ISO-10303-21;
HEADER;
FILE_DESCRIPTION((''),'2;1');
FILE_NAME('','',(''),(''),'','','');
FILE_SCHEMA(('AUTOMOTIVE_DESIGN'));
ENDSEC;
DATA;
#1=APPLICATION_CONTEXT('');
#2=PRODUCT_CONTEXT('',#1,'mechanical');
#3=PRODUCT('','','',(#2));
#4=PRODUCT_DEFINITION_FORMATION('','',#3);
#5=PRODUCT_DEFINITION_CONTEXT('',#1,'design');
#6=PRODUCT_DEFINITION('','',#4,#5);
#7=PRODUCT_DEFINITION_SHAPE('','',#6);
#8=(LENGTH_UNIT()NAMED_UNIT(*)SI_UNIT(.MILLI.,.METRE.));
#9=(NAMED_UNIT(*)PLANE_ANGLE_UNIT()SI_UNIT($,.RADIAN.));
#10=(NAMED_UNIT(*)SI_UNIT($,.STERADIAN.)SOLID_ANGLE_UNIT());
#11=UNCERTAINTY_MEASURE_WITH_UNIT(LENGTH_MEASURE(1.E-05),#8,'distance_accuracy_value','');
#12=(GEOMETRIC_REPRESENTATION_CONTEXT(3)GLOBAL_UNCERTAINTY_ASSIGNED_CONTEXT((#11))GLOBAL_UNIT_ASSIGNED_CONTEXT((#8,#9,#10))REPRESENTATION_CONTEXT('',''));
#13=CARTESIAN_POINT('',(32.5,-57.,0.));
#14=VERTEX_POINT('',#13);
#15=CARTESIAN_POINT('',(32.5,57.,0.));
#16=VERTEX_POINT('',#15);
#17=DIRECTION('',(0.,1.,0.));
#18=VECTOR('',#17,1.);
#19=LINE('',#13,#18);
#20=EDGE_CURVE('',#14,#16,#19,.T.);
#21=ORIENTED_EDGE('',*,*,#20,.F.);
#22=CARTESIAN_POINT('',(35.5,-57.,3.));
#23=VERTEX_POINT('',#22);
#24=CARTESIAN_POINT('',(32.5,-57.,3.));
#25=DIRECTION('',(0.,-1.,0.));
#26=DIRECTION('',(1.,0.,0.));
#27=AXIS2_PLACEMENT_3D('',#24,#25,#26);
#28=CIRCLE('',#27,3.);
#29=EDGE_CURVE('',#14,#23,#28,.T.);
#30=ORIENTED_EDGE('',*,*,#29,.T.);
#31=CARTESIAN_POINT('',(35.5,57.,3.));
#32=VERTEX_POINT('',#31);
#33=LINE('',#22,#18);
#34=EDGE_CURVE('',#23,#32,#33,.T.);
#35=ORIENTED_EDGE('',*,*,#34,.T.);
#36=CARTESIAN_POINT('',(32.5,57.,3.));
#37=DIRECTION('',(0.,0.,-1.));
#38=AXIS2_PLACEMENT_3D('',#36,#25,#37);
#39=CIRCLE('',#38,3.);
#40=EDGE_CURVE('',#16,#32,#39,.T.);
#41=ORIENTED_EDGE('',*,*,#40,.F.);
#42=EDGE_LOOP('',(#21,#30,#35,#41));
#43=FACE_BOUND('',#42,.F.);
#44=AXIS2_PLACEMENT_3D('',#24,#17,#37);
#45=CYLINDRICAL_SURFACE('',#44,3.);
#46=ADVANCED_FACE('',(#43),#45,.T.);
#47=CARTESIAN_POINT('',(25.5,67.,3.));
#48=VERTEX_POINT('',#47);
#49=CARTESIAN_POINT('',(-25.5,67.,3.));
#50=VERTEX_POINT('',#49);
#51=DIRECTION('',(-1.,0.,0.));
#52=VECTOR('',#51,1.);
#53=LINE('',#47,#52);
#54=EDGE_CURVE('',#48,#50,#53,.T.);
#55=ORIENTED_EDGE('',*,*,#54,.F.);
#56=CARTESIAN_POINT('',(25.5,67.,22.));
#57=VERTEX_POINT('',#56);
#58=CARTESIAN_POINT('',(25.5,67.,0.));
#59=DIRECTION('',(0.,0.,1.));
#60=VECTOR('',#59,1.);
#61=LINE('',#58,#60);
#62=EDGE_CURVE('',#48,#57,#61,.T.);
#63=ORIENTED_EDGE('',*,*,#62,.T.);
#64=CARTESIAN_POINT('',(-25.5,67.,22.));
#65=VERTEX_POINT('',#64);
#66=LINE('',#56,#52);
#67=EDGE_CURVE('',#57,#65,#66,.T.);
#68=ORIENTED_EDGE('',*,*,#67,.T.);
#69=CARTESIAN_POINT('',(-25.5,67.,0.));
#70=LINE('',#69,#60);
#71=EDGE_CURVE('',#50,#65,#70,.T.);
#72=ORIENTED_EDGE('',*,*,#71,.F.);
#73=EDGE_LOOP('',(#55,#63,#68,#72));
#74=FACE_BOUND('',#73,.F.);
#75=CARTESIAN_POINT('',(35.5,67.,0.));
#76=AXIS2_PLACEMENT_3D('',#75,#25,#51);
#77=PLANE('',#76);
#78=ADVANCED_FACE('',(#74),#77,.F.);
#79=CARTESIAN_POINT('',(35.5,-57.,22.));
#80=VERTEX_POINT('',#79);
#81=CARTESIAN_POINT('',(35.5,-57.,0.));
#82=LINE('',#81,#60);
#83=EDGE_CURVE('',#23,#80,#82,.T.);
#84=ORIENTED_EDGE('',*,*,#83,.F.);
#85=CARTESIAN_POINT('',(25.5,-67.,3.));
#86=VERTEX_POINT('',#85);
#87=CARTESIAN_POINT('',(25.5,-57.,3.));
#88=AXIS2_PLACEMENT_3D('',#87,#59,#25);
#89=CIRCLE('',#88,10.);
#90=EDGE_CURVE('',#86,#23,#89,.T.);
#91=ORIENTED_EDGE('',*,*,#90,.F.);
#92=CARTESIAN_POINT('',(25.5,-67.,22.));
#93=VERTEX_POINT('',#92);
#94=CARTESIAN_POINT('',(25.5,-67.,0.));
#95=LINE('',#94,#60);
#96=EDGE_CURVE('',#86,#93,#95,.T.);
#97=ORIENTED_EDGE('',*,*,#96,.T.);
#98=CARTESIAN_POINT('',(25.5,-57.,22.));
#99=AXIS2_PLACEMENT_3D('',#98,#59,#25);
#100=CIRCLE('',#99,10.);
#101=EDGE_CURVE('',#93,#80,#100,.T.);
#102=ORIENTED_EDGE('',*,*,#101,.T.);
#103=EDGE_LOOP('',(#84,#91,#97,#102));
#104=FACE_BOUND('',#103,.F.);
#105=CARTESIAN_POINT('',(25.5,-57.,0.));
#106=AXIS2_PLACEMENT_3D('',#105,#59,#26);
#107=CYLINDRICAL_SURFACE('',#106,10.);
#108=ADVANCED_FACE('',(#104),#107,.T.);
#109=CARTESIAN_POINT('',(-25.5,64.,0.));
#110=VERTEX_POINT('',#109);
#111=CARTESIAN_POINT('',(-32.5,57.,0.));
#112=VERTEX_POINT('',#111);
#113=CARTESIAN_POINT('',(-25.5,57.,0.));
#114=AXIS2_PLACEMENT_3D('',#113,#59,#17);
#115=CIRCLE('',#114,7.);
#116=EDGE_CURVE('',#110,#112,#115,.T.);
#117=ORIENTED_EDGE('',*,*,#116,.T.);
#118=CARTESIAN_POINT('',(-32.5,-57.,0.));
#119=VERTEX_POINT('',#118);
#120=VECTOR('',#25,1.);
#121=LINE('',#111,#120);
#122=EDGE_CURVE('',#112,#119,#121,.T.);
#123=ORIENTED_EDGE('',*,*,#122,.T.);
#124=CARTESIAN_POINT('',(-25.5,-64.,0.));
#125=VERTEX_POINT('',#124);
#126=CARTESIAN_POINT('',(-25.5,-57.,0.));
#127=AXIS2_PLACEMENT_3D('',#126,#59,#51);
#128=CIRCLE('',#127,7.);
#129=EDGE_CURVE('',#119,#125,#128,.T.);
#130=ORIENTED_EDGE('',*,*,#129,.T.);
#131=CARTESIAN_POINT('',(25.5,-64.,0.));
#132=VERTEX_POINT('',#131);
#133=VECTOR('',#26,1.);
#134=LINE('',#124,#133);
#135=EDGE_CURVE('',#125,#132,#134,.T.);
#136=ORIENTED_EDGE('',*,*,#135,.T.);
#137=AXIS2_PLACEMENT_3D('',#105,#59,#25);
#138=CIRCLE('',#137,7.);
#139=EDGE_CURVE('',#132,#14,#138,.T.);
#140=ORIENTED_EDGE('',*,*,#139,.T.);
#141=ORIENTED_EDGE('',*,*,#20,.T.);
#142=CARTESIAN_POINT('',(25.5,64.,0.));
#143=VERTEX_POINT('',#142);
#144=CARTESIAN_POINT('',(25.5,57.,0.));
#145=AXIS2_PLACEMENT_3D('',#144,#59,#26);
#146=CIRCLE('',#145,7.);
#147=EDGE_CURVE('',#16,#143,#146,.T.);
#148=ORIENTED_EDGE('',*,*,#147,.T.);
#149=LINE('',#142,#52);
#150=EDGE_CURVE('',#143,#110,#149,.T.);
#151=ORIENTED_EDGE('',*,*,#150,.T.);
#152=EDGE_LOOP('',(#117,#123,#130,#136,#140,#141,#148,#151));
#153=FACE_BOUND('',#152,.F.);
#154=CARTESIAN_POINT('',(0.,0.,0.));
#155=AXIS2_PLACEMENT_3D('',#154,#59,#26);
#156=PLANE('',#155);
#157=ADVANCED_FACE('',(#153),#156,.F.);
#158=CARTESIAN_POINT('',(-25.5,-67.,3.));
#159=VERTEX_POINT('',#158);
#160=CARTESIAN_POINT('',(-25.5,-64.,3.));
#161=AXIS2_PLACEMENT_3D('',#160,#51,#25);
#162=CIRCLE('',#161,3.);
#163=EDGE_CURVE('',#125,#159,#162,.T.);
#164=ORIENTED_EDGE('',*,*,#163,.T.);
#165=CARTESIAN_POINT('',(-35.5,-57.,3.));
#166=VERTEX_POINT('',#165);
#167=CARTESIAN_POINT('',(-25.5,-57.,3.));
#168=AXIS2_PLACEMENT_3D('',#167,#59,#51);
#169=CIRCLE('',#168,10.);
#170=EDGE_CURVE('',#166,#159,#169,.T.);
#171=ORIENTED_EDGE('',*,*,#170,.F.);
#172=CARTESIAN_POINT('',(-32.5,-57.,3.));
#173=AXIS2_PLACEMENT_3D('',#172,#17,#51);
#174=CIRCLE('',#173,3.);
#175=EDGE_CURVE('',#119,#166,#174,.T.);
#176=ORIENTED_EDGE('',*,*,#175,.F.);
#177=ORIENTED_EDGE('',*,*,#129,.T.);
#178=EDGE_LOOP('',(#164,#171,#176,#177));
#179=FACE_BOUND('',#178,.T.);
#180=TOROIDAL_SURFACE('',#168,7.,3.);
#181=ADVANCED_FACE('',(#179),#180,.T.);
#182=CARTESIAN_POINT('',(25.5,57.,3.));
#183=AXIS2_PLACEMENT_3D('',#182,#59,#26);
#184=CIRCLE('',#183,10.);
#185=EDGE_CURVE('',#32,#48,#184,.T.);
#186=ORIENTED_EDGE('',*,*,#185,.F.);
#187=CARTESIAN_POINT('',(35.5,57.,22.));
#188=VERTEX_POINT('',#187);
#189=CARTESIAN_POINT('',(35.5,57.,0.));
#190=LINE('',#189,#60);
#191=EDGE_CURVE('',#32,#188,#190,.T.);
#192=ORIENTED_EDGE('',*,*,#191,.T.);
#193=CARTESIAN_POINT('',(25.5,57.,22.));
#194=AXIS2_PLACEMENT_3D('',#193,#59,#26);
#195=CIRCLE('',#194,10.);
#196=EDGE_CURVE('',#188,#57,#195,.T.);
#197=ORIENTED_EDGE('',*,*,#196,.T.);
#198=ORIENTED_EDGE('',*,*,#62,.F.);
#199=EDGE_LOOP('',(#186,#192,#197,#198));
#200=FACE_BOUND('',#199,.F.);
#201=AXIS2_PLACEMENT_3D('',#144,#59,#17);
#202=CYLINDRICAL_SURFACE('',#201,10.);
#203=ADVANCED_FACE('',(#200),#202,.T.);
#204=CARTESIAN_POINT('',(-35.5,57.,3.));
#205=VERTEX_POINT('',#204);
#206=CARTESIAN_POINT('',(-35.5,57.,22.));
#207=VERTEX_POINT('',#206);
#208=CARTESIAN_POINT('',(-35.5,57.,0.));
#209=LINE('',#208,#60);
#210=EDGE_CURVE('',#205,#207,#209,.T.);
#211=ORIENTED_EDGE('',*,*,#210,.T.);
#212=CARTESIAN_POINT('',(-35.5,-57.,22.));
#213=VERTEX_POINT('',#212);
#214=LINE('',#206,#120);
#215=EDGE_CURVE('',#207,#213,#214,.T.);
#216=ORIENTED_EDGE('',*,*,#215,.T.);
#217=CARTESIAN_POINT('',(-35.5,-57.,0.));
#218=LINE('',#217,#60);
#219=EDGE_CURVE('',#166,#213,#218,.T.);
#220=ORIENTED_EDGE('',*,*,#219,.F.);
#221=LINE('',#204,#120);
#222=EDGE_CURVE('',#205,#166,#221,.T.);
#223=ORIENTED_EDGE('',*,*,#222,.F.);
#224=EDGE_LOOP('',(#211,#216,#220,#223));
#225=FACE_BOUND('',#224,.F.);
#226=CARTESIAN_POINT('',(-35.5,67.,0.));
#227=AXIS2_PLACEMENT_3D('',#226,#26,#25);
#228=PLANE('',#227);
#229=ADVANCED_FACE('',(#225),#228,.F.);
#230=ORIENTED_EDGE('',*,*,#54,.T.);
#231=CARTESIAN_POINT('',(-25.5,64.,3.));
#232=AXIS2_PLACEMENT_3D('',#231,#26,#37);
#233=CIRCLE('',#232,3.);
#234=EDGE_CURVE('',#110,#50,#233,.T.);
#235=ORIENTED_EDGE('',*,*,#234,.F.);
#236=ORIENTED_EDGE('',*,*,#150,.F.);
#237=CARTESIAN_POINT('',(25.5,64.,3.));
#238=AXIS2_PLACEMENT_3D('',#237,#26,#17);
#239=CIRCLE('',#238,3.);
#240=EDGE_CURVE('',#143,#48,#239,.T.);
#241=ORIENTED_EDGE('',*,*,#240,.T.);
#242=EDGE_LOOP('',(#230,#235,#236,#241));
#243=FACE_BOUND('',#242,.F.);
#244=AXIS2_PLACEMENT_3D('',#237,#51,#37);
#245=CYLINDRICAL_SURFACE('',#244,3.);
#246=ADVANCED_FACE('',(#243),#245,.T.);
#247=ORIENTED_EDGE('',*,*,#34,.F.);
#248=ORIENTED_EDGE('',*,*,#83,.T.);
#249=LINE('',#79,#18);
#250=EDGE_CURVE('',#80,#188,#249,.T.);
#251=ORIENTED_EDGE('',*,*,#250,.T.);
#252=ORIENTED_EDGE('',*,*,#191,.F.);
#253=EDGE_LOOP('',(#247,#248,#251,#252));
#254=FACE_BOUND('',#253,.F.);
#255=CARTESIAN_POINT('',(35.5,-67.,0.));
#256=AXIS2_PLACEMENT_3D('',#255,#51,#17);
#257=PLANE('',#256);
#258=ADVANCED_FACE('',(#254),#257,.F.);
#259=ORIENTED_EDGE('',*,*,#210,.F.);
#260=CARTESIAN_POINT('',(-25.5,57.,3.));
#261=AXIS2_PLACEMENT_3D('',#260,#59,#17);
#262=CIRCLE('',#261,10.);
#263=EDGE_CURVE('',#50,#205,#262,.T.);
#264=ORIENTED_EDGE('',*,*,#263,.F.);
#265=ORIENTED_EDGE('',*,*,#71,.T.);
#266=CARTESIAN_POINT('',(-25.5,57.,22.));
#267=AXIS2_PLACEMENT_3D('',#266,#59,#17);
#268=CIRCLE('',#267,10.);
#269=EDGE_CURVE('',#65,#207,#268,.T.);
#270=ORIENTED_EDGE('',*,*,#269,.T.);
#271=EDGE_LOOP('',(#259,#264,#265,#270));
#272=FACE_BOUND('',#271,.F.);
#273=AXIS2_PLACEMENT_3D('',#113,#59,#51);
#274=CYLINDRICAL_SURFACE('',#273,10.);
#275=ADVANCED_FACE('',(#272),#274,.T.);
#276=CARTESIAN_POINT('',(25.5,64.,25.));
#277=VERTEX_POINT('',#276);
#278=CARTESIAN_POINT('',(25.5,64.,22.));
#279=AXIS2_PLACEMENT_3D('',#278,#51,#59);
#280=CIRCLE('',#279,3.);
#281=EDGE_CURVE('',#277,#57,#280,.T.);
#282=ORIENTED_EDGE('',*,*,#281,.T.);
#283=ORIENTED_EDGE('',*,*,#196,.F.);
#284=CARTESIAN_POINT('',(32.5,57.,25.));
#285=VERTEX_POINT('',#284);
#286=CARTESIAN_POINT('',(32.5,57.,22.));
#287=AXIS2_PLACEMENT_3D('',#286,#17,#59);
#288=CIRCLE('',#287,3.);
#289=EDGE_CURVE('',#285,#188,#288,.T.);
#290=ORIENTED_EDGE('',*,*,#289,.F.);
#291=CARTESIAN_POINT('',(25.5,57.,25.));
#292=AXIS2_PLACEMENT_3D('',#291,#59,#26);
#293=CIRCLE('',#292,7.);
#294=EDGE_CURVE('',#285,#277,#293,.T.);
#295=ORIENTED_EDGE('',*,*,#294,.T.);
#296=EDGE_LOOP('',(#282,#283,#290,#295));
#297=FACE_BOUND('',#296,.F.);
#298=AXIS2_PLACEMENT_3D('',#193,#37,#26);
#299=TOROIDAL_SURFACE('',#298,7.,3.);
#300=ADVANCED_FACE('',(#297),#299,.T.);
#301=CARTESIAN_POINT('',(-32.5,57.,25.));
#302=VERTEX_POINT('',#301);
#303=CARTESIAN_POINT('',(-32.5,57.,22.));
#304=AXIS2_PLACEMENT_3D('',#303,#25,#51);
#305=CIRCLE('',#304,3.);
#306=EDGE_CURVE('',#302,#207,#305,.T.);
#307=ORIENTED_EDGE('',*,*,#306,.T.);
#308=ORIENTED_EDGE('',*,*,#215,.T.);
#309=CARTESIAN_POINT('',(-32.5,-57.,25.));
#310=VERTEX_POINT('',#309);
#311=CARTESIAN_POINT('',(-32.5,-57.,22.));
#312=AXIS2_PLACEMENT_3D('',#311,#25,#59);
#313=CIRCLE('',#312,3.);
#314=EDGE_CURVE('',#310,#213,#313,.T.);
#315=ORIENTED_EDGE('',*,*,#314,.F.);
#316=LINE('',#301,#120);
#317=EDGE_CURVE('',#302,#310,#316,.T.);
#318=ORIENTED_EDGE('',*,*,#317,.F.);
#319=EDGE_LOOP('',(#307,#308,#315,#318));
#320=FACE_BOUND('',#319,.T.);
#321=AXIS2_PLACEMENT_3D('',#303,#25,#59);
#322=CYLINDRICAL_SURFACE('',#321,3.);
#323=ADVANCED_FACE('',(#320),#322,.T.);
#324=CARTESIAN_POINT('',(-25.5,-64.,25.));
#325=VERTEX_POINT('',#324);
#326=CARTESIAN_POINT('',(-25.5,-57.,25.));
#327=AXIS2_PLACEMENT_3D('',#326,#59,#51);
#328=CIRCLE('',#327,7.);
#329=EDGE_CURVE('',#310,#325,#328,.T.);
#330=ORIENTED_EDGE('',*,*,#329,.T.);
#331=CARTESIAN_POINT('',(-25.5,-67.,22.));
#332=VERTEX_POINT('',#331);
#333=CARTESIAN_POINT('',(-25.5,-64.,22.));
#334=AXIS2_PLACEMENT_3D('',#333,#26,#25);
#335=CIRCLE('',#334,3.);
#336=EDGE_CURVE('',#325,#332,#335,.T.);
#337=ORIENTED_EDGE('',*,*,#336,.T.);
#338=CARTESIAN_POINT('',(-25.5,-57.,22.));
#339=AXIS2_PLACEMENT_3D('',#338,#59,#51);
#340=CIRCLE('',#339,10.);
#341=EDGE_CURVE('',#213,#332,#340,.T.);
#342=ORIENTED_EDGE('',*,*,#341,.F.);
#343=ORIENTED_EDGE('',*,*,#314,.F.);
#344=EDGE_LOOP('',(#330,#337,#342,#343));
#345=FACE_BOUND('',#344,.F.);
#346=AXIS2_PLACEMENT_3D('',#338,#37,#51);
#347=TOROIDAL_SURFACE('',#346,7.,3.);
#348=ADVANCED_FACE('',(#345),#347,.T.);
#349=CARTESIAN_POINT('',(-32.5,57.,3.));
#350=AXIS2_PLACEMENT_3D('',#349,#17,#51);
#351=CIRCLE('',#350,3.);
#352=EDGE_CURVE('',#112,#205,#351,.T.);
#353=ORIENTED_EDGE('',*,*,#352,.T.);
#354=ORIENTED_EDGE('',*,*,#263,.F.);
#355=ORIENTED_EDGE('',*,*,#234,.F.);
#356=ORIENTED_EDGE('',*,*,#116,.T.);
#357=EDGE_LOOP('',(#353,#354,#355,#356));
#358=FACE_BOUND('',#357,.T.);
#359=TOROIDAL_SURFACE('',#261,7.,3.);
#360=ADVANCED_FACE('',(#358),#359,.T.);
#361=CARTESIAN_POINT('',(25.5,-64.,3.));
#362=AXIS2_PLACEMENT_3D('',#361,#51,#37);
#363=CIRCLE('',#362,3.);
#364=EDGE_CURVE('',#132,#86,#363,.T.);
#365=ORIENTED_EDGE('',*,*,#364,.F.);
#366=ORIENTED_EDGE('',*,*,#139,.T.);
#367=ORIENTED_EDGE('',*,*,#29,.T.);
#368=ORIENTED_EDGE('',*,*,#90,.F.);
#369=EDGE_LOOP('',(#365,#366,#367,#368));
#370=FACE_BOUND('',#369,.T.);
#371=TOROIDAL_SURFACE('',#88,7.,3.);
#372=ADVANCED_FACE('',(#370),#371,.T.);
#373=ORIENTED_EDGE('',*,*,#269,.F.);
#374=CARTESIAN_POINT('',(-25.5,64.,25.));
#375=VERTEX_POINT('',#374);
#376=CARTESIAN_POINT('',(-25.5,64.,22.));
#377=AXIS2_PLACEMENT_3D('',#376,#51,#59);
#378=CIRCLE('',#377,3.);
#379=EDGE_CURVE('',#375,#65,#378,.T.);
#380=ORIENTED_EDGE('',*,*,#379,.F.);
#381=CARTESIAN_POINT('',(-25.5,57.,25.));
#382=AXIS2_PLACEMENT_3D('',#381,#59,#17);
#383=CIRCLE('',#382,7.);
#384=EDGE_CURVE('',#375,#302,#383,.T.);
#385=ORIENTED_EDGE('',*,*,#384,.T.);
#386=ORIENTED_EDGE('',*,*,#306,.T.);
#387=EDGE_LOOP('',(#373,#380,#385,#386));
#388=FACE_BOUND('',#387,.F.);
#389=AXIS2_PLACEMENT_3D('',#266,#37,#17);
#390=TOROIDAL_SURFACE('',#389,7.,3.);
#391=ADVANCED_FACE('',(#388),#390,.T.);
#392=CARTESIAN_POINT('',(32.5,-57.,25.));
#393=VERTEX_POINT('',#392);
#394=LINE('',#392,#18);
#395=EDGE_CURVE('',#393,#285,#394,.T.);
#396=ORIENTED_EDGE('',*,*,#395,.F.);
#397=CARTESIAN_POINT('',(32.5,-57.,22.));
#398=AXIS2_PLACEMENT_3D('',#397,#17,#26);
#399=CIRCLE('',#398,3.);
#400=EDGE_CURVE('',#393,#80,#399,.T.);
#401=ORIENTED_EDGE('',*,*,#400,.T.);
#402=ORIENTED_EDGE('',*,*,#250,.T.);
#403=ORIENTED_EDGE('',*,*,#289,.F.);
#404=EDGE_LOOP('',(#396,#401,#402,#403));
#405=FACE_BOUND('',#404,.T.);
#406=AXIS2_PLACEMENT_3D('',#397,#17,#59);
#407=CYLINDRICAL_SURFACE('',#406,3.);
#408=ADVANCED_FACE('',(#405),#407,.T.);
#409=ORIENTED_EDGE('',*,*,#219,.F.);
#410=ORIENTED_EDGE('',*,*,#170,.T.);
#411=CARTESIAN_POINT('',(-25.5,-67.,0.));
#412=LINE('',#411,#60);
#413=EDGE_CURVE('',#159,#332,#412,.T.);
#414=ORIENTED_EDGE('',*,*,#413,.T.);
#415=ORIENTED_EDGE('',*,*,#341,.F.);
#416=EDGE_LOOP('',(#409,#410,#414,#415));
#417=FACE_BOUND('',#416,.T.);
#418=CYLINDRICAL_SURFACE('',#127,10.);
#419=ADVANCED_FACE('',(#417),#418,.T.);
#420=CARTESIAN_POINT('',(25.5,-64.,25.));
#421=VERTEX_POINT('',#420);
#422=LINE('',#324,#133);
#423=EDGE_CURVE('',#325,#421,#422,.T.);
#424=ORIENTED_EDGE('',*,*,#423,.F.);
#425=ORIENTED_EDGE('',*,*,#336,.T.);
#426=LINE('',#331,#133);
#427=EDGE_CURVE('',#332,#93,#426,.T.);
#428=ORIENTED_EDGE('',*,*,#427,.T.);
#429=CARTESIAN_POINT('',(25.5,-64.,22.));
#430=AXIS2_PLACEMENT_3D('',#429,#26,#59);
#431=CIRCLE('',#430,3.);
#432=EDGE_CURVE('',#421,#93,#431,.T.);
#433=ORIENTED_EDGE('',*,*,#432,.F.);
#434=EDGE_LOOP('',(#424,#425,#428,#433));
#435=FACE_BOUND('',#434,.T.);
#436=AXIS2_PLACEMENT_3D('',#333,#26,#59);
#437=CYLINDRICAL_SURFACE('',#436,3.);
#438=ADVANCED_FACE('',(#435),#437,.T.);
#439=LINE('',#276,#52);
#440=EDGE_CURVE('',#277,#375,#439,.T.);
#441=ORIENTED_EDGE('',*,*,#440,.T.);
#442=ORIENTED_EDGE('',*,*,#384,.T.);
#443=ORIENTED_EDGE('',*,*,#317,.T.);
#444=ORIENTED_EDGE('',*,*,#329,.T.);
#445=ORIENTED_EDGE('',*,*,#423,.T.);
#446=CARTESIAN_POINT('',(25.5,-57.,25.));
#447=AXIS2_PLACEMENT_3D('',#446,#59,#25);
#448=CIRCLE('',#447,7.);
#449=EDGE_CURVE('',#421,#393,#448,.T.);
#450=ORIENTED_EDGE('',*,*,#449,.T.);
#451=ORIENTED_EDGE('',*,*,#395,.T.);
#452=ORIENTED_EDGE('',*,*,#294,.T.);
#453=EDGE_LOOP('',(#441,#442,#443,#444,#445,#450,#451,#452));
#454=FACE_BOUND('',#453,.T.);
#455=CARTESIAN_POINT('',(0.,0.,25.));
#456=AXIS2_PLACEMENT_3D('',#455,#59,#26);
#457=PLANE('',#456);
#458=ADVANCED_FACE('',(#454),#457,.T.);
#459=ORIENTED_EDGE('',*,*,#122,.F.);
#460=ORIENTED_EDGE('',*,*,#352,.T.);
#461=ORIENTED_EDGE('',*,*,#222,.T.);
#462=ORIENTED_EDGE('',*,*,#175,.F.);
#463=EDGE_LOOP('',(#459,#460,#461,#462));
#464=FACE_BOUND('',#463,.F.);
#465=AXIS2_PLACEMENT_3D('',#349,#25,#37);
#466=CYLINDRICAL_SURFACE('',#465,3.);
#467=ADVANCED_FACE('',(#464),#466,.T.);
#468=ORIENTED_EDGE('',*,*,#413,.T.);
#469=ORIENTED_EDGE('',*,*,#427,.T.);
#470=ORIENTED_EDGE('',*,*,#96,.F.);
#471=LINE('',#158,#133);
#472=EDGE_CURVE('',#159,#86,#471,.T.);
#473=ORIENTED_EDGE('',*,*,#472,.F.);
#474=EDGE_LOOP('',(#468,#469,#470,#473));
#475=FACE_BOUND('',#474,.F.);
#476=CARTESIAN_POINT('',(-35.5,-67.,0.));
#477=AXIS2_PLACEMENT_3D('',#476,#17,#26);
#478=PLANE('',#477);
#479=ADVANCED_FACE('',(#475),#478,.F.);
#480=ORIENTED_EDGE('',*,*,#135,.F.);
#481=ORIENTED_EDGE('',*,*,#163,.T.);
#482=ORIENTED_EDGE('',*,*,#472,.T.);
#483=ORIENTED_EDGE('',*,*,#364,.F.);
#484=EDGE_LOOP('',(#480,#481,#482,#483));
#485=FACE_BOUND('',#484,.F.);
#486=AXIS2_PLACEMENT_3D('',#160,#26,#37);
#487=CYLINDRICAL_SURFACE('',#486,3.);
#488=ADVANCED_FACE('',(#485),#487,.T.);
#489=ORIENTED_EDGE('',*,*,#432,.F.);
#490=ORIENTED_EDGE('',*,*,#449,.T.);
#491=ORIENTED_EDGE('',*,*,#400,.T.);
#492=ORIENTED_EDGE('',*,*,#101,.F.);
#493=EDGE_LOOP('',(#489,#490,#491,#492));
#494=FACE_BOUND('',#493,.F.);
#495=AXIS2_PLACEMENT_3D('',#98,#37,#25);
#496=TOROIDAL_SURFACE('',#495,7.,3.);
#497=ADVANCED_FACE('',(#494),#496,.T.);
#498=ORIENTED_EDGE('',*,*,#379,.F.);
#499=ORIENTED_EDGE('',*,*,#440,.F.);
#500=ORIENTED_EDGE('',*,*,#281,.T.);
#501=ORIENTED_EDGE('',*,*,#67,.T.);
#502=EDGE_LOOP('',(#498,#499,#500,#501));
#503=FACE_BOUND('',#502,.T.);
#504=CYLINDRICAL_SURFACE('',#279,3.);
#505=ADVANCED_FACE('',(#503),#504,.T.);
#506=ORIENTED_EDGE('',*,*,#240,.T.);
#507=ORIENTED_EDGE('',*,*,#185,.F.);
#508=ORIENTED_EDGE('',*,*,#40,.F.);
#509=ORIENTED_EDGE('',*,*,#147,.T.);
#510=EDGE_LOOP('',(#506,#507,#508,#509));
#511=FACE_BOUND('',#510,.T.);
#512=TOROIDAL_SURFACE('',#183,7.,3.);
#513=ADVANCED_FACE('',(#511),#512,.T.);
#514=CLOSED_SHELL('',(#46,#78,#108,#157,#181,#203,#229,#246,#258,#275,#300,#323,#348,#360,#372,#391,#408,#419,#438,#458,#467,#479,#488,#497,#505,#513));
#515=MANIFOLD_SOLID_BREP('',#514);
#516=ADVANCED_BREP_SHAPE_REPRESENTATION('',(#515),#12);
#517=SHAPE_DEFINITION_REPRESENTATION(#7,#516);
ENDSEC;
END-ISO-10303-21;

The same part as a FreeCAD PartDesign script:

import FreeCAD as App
import Part
import Sketcher
from FreeCAD import Vector


def edges_at(feature, points):
    """Names of the edges that pass closest to the given points."""
    edges = feature.Shape.Edges
    near = lambda p: min(range(len(edges)), key=lambda i: edges[i].distToShape(Part.Vertex(*p))[0])
    return sorted({f"Edge{near(p) + 1}" for p in points})

doc = App.newDocument("Part")
body = doc.addObject("PartDesign::Body", "Body")

# Sketch on XY plane
sketch1 = body.newObject("Sketcher::SketchObject", "Sketch")
sketch1.AttachmentSupport = (doc.getObject("XY_Plane"), [""])
sketch1.MapMode = "FlatFace"
sketch1.addGeometry([
    Part.LineSegment(Vector(-35.5, 67, 0), Vector(-35.5, -67, 0)),
    Part.LineSegment(Vector(-35.5, -67, 0), Vector(35.5, -67, 0)),
    Part.LineSegment(Vector(35.5, -67, 0), Vector(35.5, 67, 0)),
    Part.LineSegment(Vector(35.5, 67, 0), Vector(-35.5, 67, 0)),
], False)
sketch1.addConstraint([
    Sketcher.Constraint("Coincident", 0, 2, 1, 1),
    Sketcher.Constraint("Coincident", 1, 2, 2, 1),
    Sketcher.Constraint("Coincident", 2, 2, 3, 1),
    Sketcher.Constraint("Coincident", 3, 2, 0, 1),
    Sketcher.Constraint("Vertical", 0),
    Sketcher.Constraint("Horizontal", 1),
    Sketcher.Constraint("Vertical", 2),
    Sketcher.Constraint("Horizontal", 3),
    Sketcher.Constraint("Symmetric", 0, 2, 2, 2, -1, 1),
    Sketcher.Constraint("DistanceX", 1, 1, 1, 2, 71.0),
    Sketcher.Constraint("DistanceY", 0, 2, 0, 1, 134.0),
])
pad1 = body.newObject("PartDesign::Pad", "Pad")
pad1.Profile = sketch1
pad1.Length = 25
doc.recompute()

fillet = body.newObject("PartDesign::Fillet", "Fillet")
fillet.Base = (pad1, edges_at(pad1, [
    (-35.5, 67, 12.5),
    (35.5, 67, 12.5),
    (-35.5, -67, 12.5),
    (35.5, -67, 12.5),
]))
fillet.Radius = 10
doc.recompute()

fillet2 = body.newObject("PartDesign::Fillet", "Fillet001")
fillet2.Base = (fillet, edges_at(fillet, [
    (-32.571, -64.071, 0),
    (0, -67, 0),
    (32.571, -64.071, 0),
    (35.5, 0, 0),
    (32.571, 64.071, 0),
    (0, 67, 0),
    (-32.571, 64.071, 0),
    (-35.5, 0, 0),
    (0, 67, 25),
    (32.571, 64.071, 25),
    (35.5, 0, 25),
    (32.571, -64.071, 25),
    (0, -67, 25),
    (-32.571, -64.071, 25),
    (-35.5, 0, 25),
    (-32.571, 64.071, 25),
]))
fillet2.Radius = 3

doc.recompute()
